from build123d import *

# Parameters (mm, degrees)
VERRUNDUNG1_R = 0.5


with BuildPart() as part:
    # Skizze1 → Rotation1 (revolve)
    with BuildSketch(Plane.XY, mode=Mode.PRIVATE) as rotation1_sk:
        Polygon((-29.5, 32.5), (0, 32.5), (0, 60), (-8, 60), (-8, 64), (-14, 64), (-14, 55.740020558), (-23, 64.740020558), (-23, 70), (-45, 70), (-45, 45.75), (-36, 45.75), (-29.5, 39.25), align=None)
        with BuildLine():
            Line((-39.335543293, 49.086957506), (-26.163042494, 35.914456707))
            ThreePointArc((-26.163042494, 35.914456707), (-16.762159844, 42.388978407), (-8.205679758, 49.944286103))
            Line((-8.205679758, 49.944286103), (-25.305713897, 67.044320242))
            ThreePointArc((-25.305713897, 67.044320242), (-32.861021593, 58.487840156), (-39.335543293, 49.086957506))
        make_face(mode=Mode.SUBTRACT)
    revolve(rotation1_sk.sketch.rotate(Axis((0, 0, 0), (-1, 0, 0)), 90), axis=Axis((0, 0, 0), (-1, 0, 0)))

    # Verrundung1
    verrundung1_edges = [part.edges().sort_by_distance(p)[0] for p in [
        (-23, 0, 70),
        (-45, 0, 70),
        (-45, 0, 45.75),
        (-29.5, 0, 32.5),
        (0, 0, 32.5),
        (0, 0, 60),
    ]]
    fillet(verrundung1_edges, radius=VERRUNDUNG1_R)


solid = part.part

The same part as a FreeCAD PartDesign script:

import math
import FreeCAD as App
import Part
import Sketcher

V = App.Vector
Q = App.Units.Quantity


def edges_at(feature, points):
    """Names of the edges that pass closest to the given points."""
    edges = feature.Shape.Edges
    near = lambda p: min(range(len(edges)), key=lambda i: edges[i].distToShape(Part.Vertex(*p))[0])
    return sorted({f"Edge{near(p) + 1}" for p in points})

doc = App.newDocument("Part")
body = doc.addObject("PartDesign::Body", "Body")

# Sketch on XY plane
sketch1 = body.newObject("Sketcher::SketchObject", "Sketch")
sketch1.AttachmentSupport = (doc.getObject("XY_Plane"), [""])
sketch1.MapMode = "FlatFace"
sketch1.addGeometry(Part.LineSegment(V(-29.5, 32.5, 0), V(0, 32.5, 0)), False)
sketch1.addGeometry(Part.LineSegment(V(0, 32.5, 0), V(0, 60, 0)), False)
sketch1.addGeometry(Part.LineSegment(V(0, 60, 0), V(-8, 60, 0)), False)
sketch1.addGeometry(Part.LineSegment(V(-8, 60, 0), V(-8, 64, 0)), False)
sketch1.addGeometry(Part.LineSegment(V(-8, 64, 0), V(-14, 64, 0)), False)
sketch1.addGeometry(Part.LineSegment(V(-14, 64, 0), V(-14, 55.7, 0)), False)
sketch1.addGeometry(Part.LineSegment(V(-14, 55.7, 0), V(-23, 64.7, 0)), False)
sketch1.addGeometry(Part.LineSegment(V(-23, 64.7, 0), V(-23, 70, 0)), False)
sketch1.addGeometry(Part.LineSegment(V(-23, 70, 0), V(-45, 70, 0)), False)
sketch1.addGeometry(Part.LineSegment(V(-45, 70, 0), V(-45, 45.8, 0)), False)
sketch1.addGeometry(Part.LineSegment(V(-45, 45.8, 0), V(-36, 45.8, 0)), False)
sketch1.addGeometry(Part.LineSegment(V(-36, 45.8, 0), V(-29.5, 39.2, 0)), False)
sketch1.addGeometry(Part.LineSegment(V(-29.5, 39.2, 0), V(-29.5, 32.5, 0)), False)
sketch1.addGeometry(Part.LineSegment(V(-26.2, 35.9, 0), V(-39.3, 49.1, 0)), False)
sketch1.addGeometry(Part.ArcOfCircle(Part.Circle(V(42, 0, 0), V(0, 0, 1), 95), math.radians(135.11), math.radians(148.89)), False)
sketch1.addGeometry(Part.LineSegment(V(-25.3, 67, 0), V(-8.2, 49.9, 0)), False)
sketch1.addGeometry(Part.ArcOfCircle(Part.Circle(V(-75.2, 117.2, 0), V(0, 0, 1), 95), math.radians(-58.89), math.radians(-45.11)), False)
sketch1.addConstraint(Sketcher.Constraint("Coincident", 0, 2, 1, 1))
sketch1.addConstraint(Sketcher.Constraint("Coincident", 1, 2, 2, 1))
sketch1.addConstraint(Sketcher.Constraint("Coincident", 2, 2, 3, 1))
sketch1.addConstraint(Sketcher.Constraint("Coincident", 3, 2, 4, 1))
sketch1.addConstraint(Sketcher.Constraint("Coincident", 4, 2, 5, 1))
sketch1.addConstraint(Sketcher.Constraint("Coincident", 5, 2, 6, 1))
sketch1.addConstraint(Sketcher.Constraint("Coincident", 6, 2, 7, 1))
sketch1.addConstraint(Sketcher.Constraint("Coincident", 7, 2, 8, 1))
sketch1.addConstraint(Sketcher.Constraint("Coincident", 8, 2, 9, 1))
sketch1.addConstraint(Sketcher.Constraint("Coincident", 9, 2, 10, 1))
sketch1.addConstraint(Sketcher.Constraint("Coincident", 10, 2, 11, 1))
sketch1.addConstraint(Sketcher.Constraint("Coincident", 11, 2, 12, 1))
sketch1.addConstraint(Sketcher.Constraint("Coincident", 12, 2, 0, 1))
sketch1.addConstraint(Sketcher.Constraint("Coincident", 13, 2, 14, 2))
sketch1.addConstraint(Sketcher.Constraint("Coincident", 14, 1, 15, 1))
sketch1.addConstraint(Sketcher.Constraint("Coincident", 15, 2, 16, 2))
sketch1.addConstraint(Sketcher.Constraint("Coincident", 16, 1, 13, 1))
sketch1.addConstraint(Sketcher.Constraint("Horizontal", 0))
sketch1.addConstraint(Sketcher.Constraint("Vertical", 1))
sketch1.addConstraint(Sketcher.Constraint("Horizontal", 2))
sketch1.addConstraint(Sketcher.Constraint("Vertical", 3))
sketch1.addConstraint(Sketcher.Constraint("Horizontal", 4))
sketch1.addConstraint(Sketcher.Constraint("Vertical", 5))
sketch1.addConstraint(Sketcher.Constraint("Vertical", 7))
sketch1.addConstraint(Sketcher.Constraint("Horizontal", 8))
sketch1.addConstraint(Sketcher.Constraint("Vertical", 9))
sketch1.addConstraint(Sketcher.Constraint("Horizontal", 10))
sketch1.addConstraint(Sketcher.Constraint("Vertical", 12))
sketch1.addConstraint(Sketcher.Constraint("Equal", 14, 16))
sketch1.addConstraint(Sketcher.Constraint("PointOnObject", 14, 3, -1))
sketch1.addConstraint(Sketcher.Constraint("PointOnObject", 0, 2, -2))
sketch1.addConstraint(Sketcher.Constraint("Parallel", 6, 11))
sketch1.addConstraint(Sketcher.Constraint("Parallel", 11, 13))
sketch1.addConstraint(Sketcher.Constraint("Parallel", 13, 15))
sketch1.addConstraint(Sketcher.Constraint("Radius", 14, 95.0))
sketch1.addConstraint(Sketcher.Constraint("DistanceX", 2, 2, 2, 1, 8.0))
sketch1.addConstraint(Sketcher.Constraint("DistanceX", 4, 2, 4, 1, 6.0))
sketch1.addConstraint(Sketcher.Constraint("DistanceX", 8, 2, 8, 1, 22.0))
sketch1.addConstraint(Sketcher.Constraint("DistanceX", 10, 1, 10, 2, 9.0))
sketch1.addConstraint(Sketcher.Constraint("DistanceY", 3, 1, 3, 2, 4.0))
sketch1.addConstraint(Sketcher.Constraint("Angle", 6, Q("135 deg")))
sketch1.addConstraint(Sketcher.Constraint("DistanceX", 0, 1, 0, 2, 29.5))
sketch1.addConstraint(Sketcher.Constraint("DistanceY", 1, 1, 1, 2, 27.5))
sketch1.addConstraint(Sketcher.Constraint("DistanceX", -1, 1, 14, 3, 42.0))
sketch1.addConstraint(Sketcher.Constraint("DistanceY", -1, 1, 1, 2, 60.0))
sketch1.addConstraint(Sketcher.Constraint("DistanceX", 6, 2, -1, 1, 23.0))
sketch1.addConstraint(Sketcher.Constraint("DistanceY", -1, 1, 7, 2, 70.0))
sketch1.addConstraint(Sketcher.Constraint("DistanceY", 9, 2, 9, 1, 24.25))
sketch1.addConstraint(Sketcher.Constraint("DistanceX", 16, 3, -1, 1, 75.25))
sketch1.addConstraint(Sketcher.Constraint("DistanceY", -1, 1, 16, 3, 117.25))
sketch1.addConstraint(Sketcher.Constraint("DistanceY", 5, 2, 5, 1, 8.259979))
sketch1.addConstraint(Sketcher.Constraint("DistanceY", 6, 2, 14, 1, 2.3043))
sketch1.addConstraint(Sketcher.Constraint("DistanceX", 13, 2, 16, 1, 13.172501))
revolution = body.newObject("PartDesign::Revolution", "Revolution")
revolution.Profile = sketch1
revolution.ReferenceAxis = (sketch1, ["H_Axis"])
revolution.Angle = 360
doc.recompute()

fillet = body.newObject("PartDesign::Fillet", "Fillet")
fillet.Base = (revolution, edges_at(revolution, [
    (-23, 0, 70),
    (-45, 0, 70),
    (-45, 0, 45.75),
    (-29.5, 0, 32.5),
    (0, 0, 32.5),
    (0, 0, 60),
]))
fillet.Radius = 0.5

doc.recompute()
